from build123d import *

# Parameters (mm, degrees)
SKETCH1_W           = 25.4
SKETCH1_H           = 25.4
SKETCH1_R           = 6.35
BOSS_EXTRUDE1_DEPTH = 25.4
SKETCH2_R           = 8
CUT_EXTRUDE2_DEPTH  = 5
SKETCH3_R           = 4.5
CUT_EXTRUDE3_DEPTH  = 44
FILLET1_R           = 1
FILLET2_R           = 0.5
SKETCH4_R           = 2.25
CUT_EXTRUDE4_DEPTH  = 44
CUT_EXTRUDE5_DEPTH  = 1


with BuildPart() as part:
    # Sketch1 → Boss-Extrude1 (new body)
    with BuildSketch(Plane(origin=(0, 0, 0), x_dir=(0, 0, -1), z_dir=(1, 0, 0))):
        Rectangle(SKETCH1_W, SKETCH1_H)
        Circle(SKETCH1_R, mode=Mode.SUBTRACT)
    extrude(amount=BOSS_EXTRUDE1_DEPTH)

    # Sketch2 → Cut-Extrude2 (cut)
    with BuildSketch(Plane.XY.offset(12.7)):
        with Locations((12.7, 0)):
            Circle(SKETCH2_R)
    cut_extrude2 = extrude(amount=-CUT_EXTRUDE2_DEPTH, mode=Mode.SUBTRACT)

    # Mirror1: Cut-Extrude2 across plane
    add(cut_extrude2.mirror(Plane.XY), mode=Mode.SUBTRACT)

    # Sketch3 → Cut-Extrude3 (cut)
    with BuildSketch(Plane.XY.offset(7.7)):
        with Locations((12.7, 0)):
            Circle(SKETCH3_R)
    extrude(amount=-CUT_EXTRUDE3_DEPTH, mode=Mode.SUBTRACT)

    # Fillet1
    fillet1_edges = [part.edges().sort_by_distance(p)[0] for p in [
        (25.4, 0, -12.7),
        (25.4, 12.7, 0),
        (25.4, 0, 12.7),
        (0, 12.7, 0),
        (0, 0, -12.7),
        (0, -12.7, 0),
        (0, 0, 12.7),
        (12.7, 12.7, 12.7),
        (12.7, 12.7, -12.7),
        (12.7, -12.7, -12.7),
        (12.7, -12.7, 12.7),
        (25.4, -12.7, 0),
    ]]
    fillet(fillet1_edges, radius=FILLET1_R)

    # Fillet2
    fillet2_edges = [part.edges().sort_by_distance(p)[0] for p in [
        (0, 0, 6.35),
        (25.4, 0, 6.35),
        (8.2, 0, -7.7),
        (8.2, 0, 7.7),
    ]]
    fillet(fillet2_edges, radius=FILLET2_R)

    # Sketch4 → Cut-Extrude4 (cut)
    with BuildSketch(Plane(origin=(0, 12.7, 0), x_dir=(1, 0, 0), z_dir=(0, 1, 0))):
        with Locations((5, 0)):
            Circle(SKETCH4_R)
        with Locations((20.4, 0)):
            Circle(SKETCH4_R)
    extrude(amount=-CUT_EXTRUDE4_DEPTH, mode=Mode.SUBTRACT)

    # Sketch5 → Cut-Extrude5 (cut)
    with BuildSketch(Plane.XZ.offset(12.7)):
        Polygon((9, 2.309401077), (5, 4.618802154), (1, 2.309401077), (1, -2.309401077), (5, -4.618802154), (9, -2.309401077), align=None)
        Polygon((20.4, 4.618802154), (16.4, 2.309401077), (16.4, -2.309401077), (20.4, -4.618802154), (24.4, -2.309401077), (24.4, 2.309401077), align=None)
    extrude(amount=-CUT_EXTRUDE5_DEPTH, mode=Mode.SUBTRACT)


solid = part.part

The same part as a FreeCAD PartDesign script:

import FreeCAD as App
import Part
import Sketcher
Q = App.Units.Quantity


def edges_at(feature, points):
    """Names of the edges that pass closest to the given points."""
    edges = feature.Shape.Edges
    near = lambda p: min(range(len(edges)), key=lambda i: edges[i].distToShape(Part.Vertex(*p))[0])
    return sorted({f"Edge{near(p) + 1}" for p in points})


def add_polygon(sketch, points):
    """Adds a closed chain of lines whose ends are joined by coincident constraints."""
    first, n = sketch.GeometryCount, len(points)
    for a, b in zip(points, points[1:] + points[:1]):
        sketch.addGeometry(Part.LineSegment(App.Vector(*a, 0), App.Vector(*b, 0)), False)
    for i in range(n):
        sketch.addConstraint(Sketcher.Constraint("Coincident", first + i, 2, first + (i + 1) % n, 1))

doc = App.newDocument("Part")
body = doc.addObject("PartDesign::Body", "Body")

# Sketch on YZ plane
sketch1 = body.newObject("Sketcher::SketchObject", "Sketch")
sketch1.AttachmentSupport = (doc.getObject("YZ_Plane"), [""])
sketch1.MapMode = "FlatFace"
add_polygon(sketch1, [(12.7, 12.7), (-12.7, 12.7), (-12.7, -12.7), (12.7, -12.7)])  # lines 0-3
sketch1.addGeometry(Part.Circle(App.Vector(0, 0, 0), App.Vector(0, 0, 1), 6.35), False)  # 4
sketch1.addConstraint([
    Sketcher.Constraint("Horizontal", 0),
    Sketcher.Constraint("Vertical", 1),
    Sketcher.Constraint("Horizontal", 2),
    Sketcher.Constraint("Vertical", 3),
    Sketcher.Constraint("Coincident", 4, 3, -1, 1),
    Sketcher.Constraint("Symmetric", 0, 2, 2, 2, -1, 1),
    Sketcher.Constraint("Equal", 2, 1),
    Sketcher.Constraint("Diameter", 4, 12.7),
    Sketcher.Constraint("DistanceX", 0, 2, 0, 1, 25.4),
])
pad1 = body.newObject("PartDesign::Pad", "Pad")
pad1.Profile = sketch1
pad1.Length = 25.4

# Sketch on XY plane
sketch2 = body.newObject("Sketcher::SketchObject", "Sketch001")
sketch2.AttachmentSupport = (doc.getObject("XY_Plane"), [""])
sketch2.MapMode = "FlatFace"
sketch2.AttachmentOffset = App.Placement(App.Vector(0, 0, 12.7), App.Rotation())
sketch2.addGeometry(Part.Circle(App.Vector(12.7, 0, 0), App.Vector(0, 0, 1), 8), False)
sketch2.addConstraint([
    Sketcher.Constraint("PointOnObject", 0, 3, -1),
    Sketcher.Constraint("Diameter", 0, 16.0),
    Sketcher.Constraint("DistanceX", -1, 1, 0, 3, 12.7),
])
pocket1 = body.newObject("PartDesign::Pocket", "Pocket")
pocket1.Profile = sketch2
pocket1.Length = 5
doc.recompute()

mirrored = body.newObject("PartDesign::Mirrored", "Mirrored")
mirrored.Originals = [pocket1]
mirrored.MirrorPlane = (doc.getObject("XY_Plane"), [""])
body.Tip = mirrored

# Sketch on XY plane
sketch3 = body.newObject("Sketcher::SketchObject", "Sketch002")
sketch3.AttachmentSupport = (doc.getObject("XY_Plane"), [""])
sketch3.MapMode = "FlatFace"
sketch3.AttachmentOffset = App.Placement(App.Vector(0, 0, 7.7), App.Rotation())
sketch3.addGeometry(Part.Circle(App.Vector(12.7, 0, 0), App.Vector(0, 0, 1), 4.5), False)
sketch3.addConstraint([
    Sketcher.Constraint("PointOnObject", 0, 3, -1),
    Sketcher.Constraint("Diameter", 0, 9.0),
    Sketcher.Constraint("DistanceX", -1, 1, 0, 3, 12.7),
])
pocket2 = body.newObject("PartDesign::Pocket", "Pocket001")
pocket2.Profile = sketch3
pocket2.Length = 44
doc.recompute()

fillet = body.newObject("PartDesign::Fillet", "Fillet")
fillet.Base = (pocket2, edges_at(pocket2, [
    (25.4, 0, -12.7),
    (25.4, 12.7, 0),
    (25.4, 0, 12.7),
    (0, 12.7, 0),
    (0, 0, -12.7),
    (0, -12.7, 0),
    (0, 0, 12.7),
    (12.7, 12.7, 12.7),
    (12.7, 12.7, -12.7),
    (12.7, -12.7, -12.7),
    (12.7, -12.7, 12.7),
    (25.4, -12.7, 0),
]))
fillet.Radius = 1
doc.recompute()

fillet2 = body.newObject("PartDesign::Fillet", "Fillet001")
fillet2.Base = (fillet, edges_at(fillet, [
    (0, 0, 6.35),
    (25.4, 0, 6.35),
    (8.2, 0, -7.7),
    (8.2, 0, 7.7),
]))
fillet2.Radius = 0.5

# Sketch on XZ plane
sketch4 = body.newObject("Sketcher::SketchObject", "Sketch003")
sketch4.AttachmentSupport = (doc.getObject("XZ_Plane"), [""])
sketch4.MapMode = "FlatFace"
sketch4.AttachmentOffset = App.Placement(App.Vector(0, 0, -12.7), App.Rotation())
sketch4.addGeometry([
    Part.Circle(App.Vector(5, 0, 0), App.Vector(0, 0, 1), 2.25),
    Part.Circle(App.Vector(20.4, 0, 0), App.Vector(0, 0, 1), 2.25),
], False)
sketch4.addConstraint([
    Sketcher.Constraint("Equal", 0, 1),
    Sketcher.Constraint("PointOnObject", 0, 3, -1),
    Sketcher.Constraint("PointOnObject", 1, 3, -1),
    Sketcher.Constraint("Diameter", 0, 4.5),
    Sketcher.Constraint("DistanceX", -1, 1, 0, 3, 5.0),
    Sketcher.Constraint("DistanceX", -1, 1, 1, 3, 20.4),
])
pocket3 = body.newObject("PartDesign::Pocket", "Pocket002")
pocket3.Profile = sketch4
pocket3.Length = 44
pocket3.Reversed = True

# Sketch on XZ plane
sketch5 = body.newObject("Sketcher::SketchObject", "Sketch004")
sketch5.AttachmentSupport = (doc.getObject("XZ_Plane"), [""])
sketch5.MapMode = "FlatFace"
sketch5.AttachmentOffset = App.Placement(App.Vector(0, 0, 12.7), App.Rotation())
add_polygon(sketch5, [(9, 2.309401), (5, 4.618802), (1, 2.309401), (1, -2.309401), (5, -4.618802), (9, -2.309401)])  # lines 0-5
add_polygon(sketch5, [(20.4, 4.618802), (16.4, 2.309401), (16.4, -2.309401), (20.4, -4.618802), (24.4, -2.309401), (24.4, 2.309401)])  # lines 6-11
sketch5.addConstraint([
    Sketcher.Constraint("Vertical", 2),
    Sketcher.Constraint("Vertical", 5),
    Sketcher.Constraint("Vertical", 7),
    Sketcher.Constraint("Vertical", 10),
    Sketcher.Constraint("Symmetric", 0, 2, 3, 2, -1),
    Sketcher.Constraint("Symmetric", 8, 2, 11, 2, -1),
    Sketcher.Constraint("Parallel", 0, 3),
    Sketcher.Constraint("Parallel", 1, 4),
    Sketcher.Constraint("Parallel", 4, 6),
    Sketcher.Constraint("Parallel", 3, 8),
    Sketcher.Constraint("Parallel", 6, 9),
    Sketcher.Constraint("Parallel", 8, 11),
    Sketcher.Constraint("Horizontal", 2, 2, 4, 2),
    Sketcher.Constraint("Horizontal", 1, 2, 5, 2),
    Sketcher.Constraint("Horizontal", 5, 2, 6, 2),
    Sketcher.Constraint("Horizontal", 3, 2, 8, 2),
    Sketcher.Constraint("Horizontal", 7, 2, 9, 2),
    Sketcher.Constraint("Angle", 0, Q("150 deg")),
    Sketcher.Constraint("DistanceX", -1, 1, 0, 2, 5.0),
    Sketcher.Constraint("DistanceX", -1, 1, 1, 2, 1.0),
    Sketcher.Constraint("DistanceX", -1, 1, 6, 2, 16.4),
    Sketcher.Constraint("DistanceY", -1, 1, 1, 2, 2.309401),
])
pocket4 = body.newObject("PartDesign::Pocket", "Pocket003")
pocket4.Profile = sketch5
pocket4.Length = 1

doc.recompute()
